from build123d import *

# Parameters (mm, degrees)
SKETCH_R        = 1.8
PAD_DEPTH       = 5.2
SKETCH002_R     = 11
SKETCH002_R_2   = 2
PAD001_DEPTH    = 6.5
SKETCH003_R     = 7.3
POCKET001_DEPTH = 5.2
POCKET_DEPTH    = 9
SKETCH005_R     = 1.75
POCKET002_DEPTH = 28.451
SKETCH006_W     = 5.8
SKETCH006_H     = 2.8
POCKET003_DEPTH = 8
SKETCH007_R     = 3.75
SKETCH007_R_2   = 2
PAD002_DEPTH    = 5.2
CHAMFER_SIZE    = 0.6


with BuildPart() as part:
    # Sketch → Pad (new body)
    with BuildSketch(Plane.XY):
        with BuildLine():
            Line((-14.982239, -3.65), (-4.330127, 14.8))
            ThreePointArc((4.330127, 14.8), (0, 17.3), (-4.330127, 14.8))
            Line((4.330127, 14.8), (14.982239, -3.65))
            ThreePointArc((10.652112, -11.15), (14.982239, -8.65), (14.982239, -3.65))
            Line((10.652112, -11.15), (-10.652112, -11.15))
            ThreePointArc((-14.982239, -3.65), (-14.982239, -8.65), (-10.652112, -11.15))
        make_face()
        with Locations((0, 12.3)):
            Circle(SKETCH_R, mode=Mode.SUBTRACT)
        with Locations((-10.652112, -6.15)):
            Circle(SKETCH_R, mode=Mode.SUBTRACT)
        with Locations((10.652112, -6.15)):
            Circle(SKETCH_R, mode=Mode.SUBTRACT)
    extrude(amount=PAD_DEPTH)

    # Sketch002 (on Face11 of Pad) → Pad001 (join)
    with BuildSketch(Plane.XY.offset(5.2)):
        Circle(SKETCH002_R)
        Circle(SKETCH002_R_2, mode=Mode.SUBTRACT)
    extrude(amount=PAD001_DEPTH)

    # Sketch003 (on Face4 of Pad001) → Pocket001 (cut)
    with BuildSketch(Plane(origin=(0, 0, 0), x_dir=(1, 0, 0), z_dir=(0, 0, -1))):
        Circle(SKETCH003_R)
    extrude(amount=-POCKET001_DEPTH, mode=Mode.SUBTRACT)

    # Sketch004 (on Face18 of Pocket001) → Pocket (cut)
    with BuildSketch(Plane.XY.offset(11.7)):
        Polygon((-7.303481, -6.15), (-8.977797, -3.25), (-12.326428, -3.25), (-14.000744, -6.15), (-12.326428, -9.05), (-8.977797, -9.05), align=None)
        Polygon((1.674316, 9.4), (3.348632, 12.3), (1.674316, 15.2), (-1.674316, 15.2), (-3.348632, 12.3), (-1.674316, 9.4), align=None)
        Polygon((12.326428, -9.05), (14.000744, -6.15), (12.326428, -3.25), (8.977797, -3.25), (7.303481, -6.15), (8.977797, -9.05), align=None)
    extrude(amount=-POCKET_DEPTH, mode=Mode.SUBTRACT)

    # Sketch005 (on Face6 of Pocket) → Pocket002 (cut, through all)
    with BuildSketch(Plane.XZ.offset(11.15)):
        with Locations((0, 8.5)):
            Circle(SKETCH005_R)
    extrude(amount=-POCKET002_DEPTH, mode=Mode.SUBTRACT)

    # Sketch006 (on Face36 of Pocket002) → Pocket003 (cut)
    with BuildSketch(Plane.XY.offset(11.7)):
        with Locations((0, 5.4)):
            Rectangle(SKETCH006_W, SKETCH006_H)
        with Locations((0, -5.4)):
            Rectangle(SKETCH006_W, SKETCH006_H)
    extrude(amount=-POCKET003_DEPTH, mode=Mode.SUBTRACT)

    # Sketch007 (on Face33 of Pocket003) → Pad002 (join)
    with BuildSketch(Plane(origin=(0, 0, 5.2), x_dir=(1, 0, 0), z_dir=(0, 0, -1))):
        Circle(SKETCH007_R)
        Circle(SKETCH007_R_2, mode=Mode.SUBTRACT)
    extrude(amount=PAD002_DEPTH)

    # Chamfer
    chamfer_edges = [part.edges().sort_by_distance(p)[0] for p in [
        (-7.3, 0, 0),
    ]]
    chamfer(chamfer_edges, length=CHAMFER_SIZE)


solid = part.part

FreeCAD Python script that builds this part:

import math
import FreeCAD as App
import Part
import Sketcher

V = App.Vector
Q = App.Units.Quantity


def edges_at(feature, points):
    """Names of the edges that pass closest to the given points."""
    edges = feature.Shape.Edges
    near = lambda p: min(range(len(edges)), key=lambda i: edges[i].distToShape(Part.Vertex(*p))[0])
    return sorted({f"Edge{near(p) + 1}" for p in points})

doc = App.newDocument("Part")
body = doc.addObject("PartDesign::Body", "Body")

sketch1 = body.newObject("Sketcher::SketchObject", "Sketch")
sketch1.AttachmentSupport = (doc.getObject("XY_Plane"), [""])
sketch1.MapMode = "FlatFace"
sketch1.addGeometry(Part.LineSegment(V(-4.3, 14.8, 0), V(-15, -3.6, 0)), False)
sketch1.addGeometry(Part.ArcOfCircle(Part.Circle(V(-10.7, -6.2, 0), V(0, 0, 1), 5), math.radians(150), math.radians(270)), False)
sketch1.addGeometry(Part.LineSegment(V(-10.7, -11.2, 0), V(10.7, -11.2, 0)), False)
sketch1.addGeometry(Part.ArcOfCircle(Part.Circle(V(10.7, -6.2, 0), V(0, 0, 1), 5), math.radians(-90), math.radians(30)), False)
sketch1.addGeometry(Part.LineSegment(V(15, -3.6, 0), V(4.3, 14.8, 0)), False)
sketch1.addGeometry(Part.ArcOfCircle(Part.Circle(V(0, 12.3, 0), V(0, 0, 1), 5), math.radians(30), math.radians(150)), False)
sketch1.addGeometry(Part.Circle(V(10.7, -6.2, 0), V(0, 0, 1), 1.8), False)
sketch1.addGeometry(Part.Circle(V(-10.7, -6.2, 0), V(0, 0, 1), 1.8), False)
sketch1.addGeometry(Part.Circle(V(0, 12.3, 0), V(0, 0, 1), 1.8), False)
sketch1.addConstraint(Sketcher.Constraint("Tangent", 0, 2, 1, 1))
sketch1.addConstraint(Sketcher.Constraint("Tangent", 1, 2, 2, 1))
sketch1.addConstraint(Sketcher.Constraint("Tangent", 2, 2, 3, 1))
sketch1.addConstraint(Sketcher.Constraint("Tangent", 3, 2, 4, 1))
sketch1.addConstraint(Sketcher.Constraint("Tangent", 4, 2, 5, 1))
sketch1.addConstraint(Sketcher.Constraint("Tangent", 5, 2, 0, 1))
sketch1.addConstraint(Sketcher.Constraint("Horizontal", 2))
sketch1.addConstraint(Sketcher.Constraint("Coincident", 6, 3, 3, 3))
sketch1.addConstraint(Sketcher.Constraint("Coincident", 7, 3, 1, 3))
sketch1.addConstraint(Sketcher.Constraint("Coincident", 8, 3, 5, 3))
sketch1.addConstraint(Sketcher.Constraint("Equal", 1, 3))
sketch1.addConstraint(Sketcher.Constraint("Equal", 3, 5))
sketch1.addConstraint(Sketcher.Constraint("Equal", 6, 7))
sketch1.addConstraint(Sketcher.Constraint("Equal", 7, 8))
sketch1.addConstraint(Sketcher.Constraint("Symmetric", 0, 2, 3, 2, -2))
sketch1.addConstraint(Sketcher.Constraint("Radius", 1, Q("5 mm")))
sketch1.addConstraint(Sketcher.Constraint("Diameter", 6, Q("3.6 mm")))
sketch1.addConstraint(Sketcher.Constraint("Angle", 0, Q("-119.999999 deg")))
sketch1.addConstraint(Sketcher.Constraint("DistanceY", -1, 1, 5, 3, Q("12.3 mm")))
sketch1.addConstraint(Sketcher.Constraint("DistanceY", 1, 3, -1, 1, Q("6.15 mm")))
pad1 = body.newObject("PartDesign::Pad", "Pad")
pad1.Profile = sketch1
pad1.Length = 5.2

sketch2 = body.newObject("Sketcher::SketchObject", "Sketch001")
sketch2.AttachmentSupport = (doc.getObject("XY_Plane"), [""])
sketch2.MapMode = "FlatFace"
sketch2.AttachmentOffset = App.Placement(V(0, 0, 5.2), App.Rotation())
sketch2.addGeometry(Part.Circle(V(0, 0, 0), V(0, 0, 1), 11), False)
sketch2.addGeometry(Part.Circle(V(0, 0, 0), V(0, 0, 1), 2), False)
sketch2.addConstraint(Sketcher.Constraint("Coincident", 0, 3, -1, 1))
sketch2.addConstraint(Sketcher.Constraint("Coincident", 1, 3, -1, 1))
sketch2.addConstraint(Sketcher.Constraint("Diameter", 0, Q("22 mm")))
sketch2.addConstraint(Sketcher.Constraint("Diameter", 1, Q("4 mm")))
pad2 = body.newObject("PartDesign::Pad", "Pad001")
pad2.Profile = sketch2
pad2.Length = 6.5

sketch3 = body.newObject("Sketcher::SketchObject", "Sketch002")
sketch3.AttachmentSupport = (doc.getObject("XY_Plane"), [""])
sketch3.MapMode = "FlatFace"
sketch3.addGeometry(Part.Circle(V(0, 0, 0), V(0, 0, 1), 7), False)
sketch3.addConstraint(Sketcher.Constraint("Coincident", 0, 3, -1, 1))
sketch3.addConstraint(Sketcher.Constraint("Diameter", 0, Q("14.6 mm")))
pocket1 = body.newObject("PartDesign::Pocket", "Pocket")
pocket1.Profile = sketch3
pocket1.Length = 5.2
pocket1.Reversed = True

sketch4 = body.newObject("Sketcher::SketchObject", "Sketch003")
sketch4.AttachmentSupport = (doc.getObject("XY_Plane"), [""])
sketch4.MapMode = "FlatFace"
sketch4.AttachmentOffset = App.Placement(V(0, 0, 11.7), App.Rotation())
sketch4.addGeometry(Part.LineSegment(V(-7.3, -6.2, 0), V(-9, -3.2, 0)), False)
sketch4.addGeometry(Part.LineSegment(V(-9, -3.2, 0), V(-12.3, -3.2, 0)), False)
sketch4.addGeometry(Part.LineSegment(V(-12.3, -3.2, 0), V(-14, -6.2, 0)), False)
sketch4.addGeometry(Part.LineSegment(V(-14, -6.2, 0), V(-12.3, -9.1, 0)), False)
sketch4.addGeometry(Part.LineSegment(V(-12.3, -9.1, 0), V(-9, -9.1, 0)), False)
sketch4.addGeometry(Part.LineSegment(V(-9, -9.1, 0), V(-7.3, -6.2, 0)), False)
sketch4.addGeometry(Part.LineSegment(V(1.7, 9.4, 0), V(3.3, 12.3, 0)), False)
sketch4.addGeometry(Part.LineSegment(V(3.3, 12.3, 0), V(1.7, 15.2, 0)), False)
sketch4.addGeometry(Part.LineSegment(V(1.7, 15.2, 0), V(-1.7, 15.2, 0)), False)
sketch4.addGeometry(Part.LineSegment(V(-1.7, 15.2, 0), V(-3.3, 12.3, 0)), False)
sketch4.addGeometry(Part.LineSegment(V(-3.3, 12.3, 0), V(-1.7, 9.4, 0)), False)
sketch4.addGeometry(Part.LineSegment(V(-1.7, 9.4, 0), V(1.7, 9.4, 0)), False)
sketch4.addGeometry(Part.LineSegment(V(12.3, -9.1, 0), V(14, -6.2, 0)), False)
sketch4.addGeometry(Part.LineSegment(V(14, -6.2, 0), V(12.3, -3.2, 0)), False)
sketch4.addGeometry(Part.LineSegment(V(12.3, -3.2, 0), V(9, -3.2, 0)), False)
sketch4.addGeometry(Part.LineSegment(V(9, -3.2, 0), V(7.3, -6.2, 0)), False)
sketch4.addGeometry(Part.LineSegment(V(7.3, -6.2, 0), V(9, -9.1, 0)), False)
sketch4.addGeometry(Part.LineSegment(V(9, -9.1, 0), V(12.3, -9.1, 0)), False)
sketch4.addConstraint(Sketcher.Constraint("Coincident", 0, 2, 1, 1))
sketch4.addConstraint(Sketcher.Constraint("Coincident", 1, 2, 2, 1))
sketch4.addConstraint(Sketcher.Constraint("Coincident", 2, 2, 3, 1))
sketch4.addConstraint(Sketcher.Constraint("Coincident", 3, 2, 4, 1))
sketch4.addConstraint(Sketcher.Constraint("Coincident", 4, 2, 5, 1))
sketch4.addConstraint(Sketcher.Constraint("Coincident", 5, 2, 0, 1))
sketch4.addConstraint(Sketcher.Constraint("Coincident", 6, 2, 7, 1))
sketch4.addConstraint(Sketcher.Constraint("Coincident", 7, 2, 8, 1))
sketch4.addConstraint(Sketcher.Constraint("Coincident", 8, 2, 9, 1))
sketch4.addConstraint(Sketcher.Constraint("Coincident", 9, 2, 10, 1))
sketch4.addConstraint(Sketcher.Constraint("Coincident", 10, 2, 11, 1))
sketch4.addConstraint(Sketcher.Constraint("Coincident", 11, 2, 6, 1))
sketch4.addConstraint(Sketcher.Constraint("Coincident", 12, 2, 13, 1))
sketch4.addConstraint(Sketcher.Constraint("Coincident", 13, 2, 14, 1))
sketch4.addConstraint(Sketcher.Constraint("Coincident", 14, 2, 15, 1))
sketch4.addConstraint(Sketcher.Constraint("Coincident", 15, 2, 16, 1))
sketch4.addConstraint(Sketcher.Constraint("Coincident", 16, 2, 17, 1))
sketch4.addConstraint(Sketcher.Constraint("Coincident", 17, 2, 12, 1))
sketch4.addConstraint(Sketcher.Constraint("Horizontal", 1))
sketch4.addConstraint(Sketcher.Constraint("Horizontal", 4))
sketch4.addConstraint(Sketcher.Constraint("Horizontal", 8))
sketch4.addConstraint(Sketcher.Constraint("Horizontal", 11))
sketch4.addConstraint(Sketcher.Constraint("Horizontal", 14))
sketch4.addConstraint(Sketcher.Constraint("Horizontal", 17))
sketch4.addConstraint(Sketcher.Constraint("Symmetric", 6, 2, 9, 2, -2))
sketch4.addConstraint(Sketcher.Constraint("Symmetric", 2, 2, 12, 2, -2))
sketch4.addConstraint(Sketcher.Constraint("Symmetric", 1, 2, 13, 2, -2))
sketch4.addConstraint(Sketcher.Constraint("Symmetric", 5, 2, 15, 2, -2))
sketch4.addConstraint(Sketcher.Constraint("Symmetric", 4, 2, 16, 2, -2))
sketch4.addConstraint(Sketcher.Constraint("Parallel", 0, 3))
sketch4.addConstraint(Sketcher.Constraint("Parallel", 2, 5))
sketch4.addConstraint(Sketcher.Constraint("Parallel", 5, 6))
sketch4.addConstraint(Sketcher.Constraint("Parallel", 3, 7))
sketch4.addConstraint(Sketcher.Constraint("Parallel", 6, 9))
sketch4.addConstraint(Sketcher.Constraint("Parallel", 7, 10))
sketch4.addConstraint(Sketcher.Constraint("Parallel", 9, 12))
sketch4.addConstraint(Sketcher.Constraint("Parallel", 10, 13))
sketch4.addConstraint(Sketcher.Constraint("Parallel", 12, 15))
sketch4.addConstraint(Sketcher.Constraint("Horizontal", 2, 2, 5, 2))
sketch4.addConstraint(Sketcher.Constraint("Vertical", 1, 2, 3, 2))
sketch4.addConstraint(Sketcher.Constraint("Vertical", 8, 2, 10, 2))
sketch4.addConstraint(Sketcher.Constraint("Equal", 4, 8))
sketch4.addConstraint(Sketcher.Constraint("Equal", 5, 6))
sketch4.addConstraint(Sketcher.Constraint("Angle", 0, Q("120.000003 deg")))
sketch4.addConstraint(Sketcher.Constraint("DistanceY", -1, 1, 6, 2, Q("12.3 mm")))
sketch4.addConstraint(Sketcher.Constraint("DistanceY", -1, 1, 7, 2, Q("15.2 mm")))
sketch4.addConstraint(Sketcher.Constraint("DistanceY", 0, 2, -1, 1, Q("3.25 mm")))
sketch4.addConstraint(Sketcher.Constraint("DistanceX", 1, 2, 1, 1, Q("3.348631 mm")))
sketch4.addConstraint(Sketcher.Constraint("DistanceX", 5, 2, -1, 1, Q("7.303481 mm")))
pocket2 = body.newObject("PartDesign::Pocket", "Pocket001")
pocket2.Profile = sketch4
pocket2.Length = 9

sketch5 = body.newObject("Sketcher::SketchObject", "Sketch004")
sketch5.AttachmentSupport = (doc.getObject("XZ_Plane"), [""])
sketch5.MapMode = "FlatFace"
sketch5.AttachmentOffset = App.Placement(V(0, 0, 11.15), App.Rotation())
sketch5.addGeometry(Part.Circle(V(0, 8.5, 0), V(0, 0, 1), 1.8), False)
sketch5.addConstraint(Sketcher.Constraint("PointOnObject", 0, 3, -2))
sketch5.addConstraint(Sketcher.Constraint("Diameter", 0, Q("3.5 mm")))
sketch5.addConstraint(Sketcher.Constraint("DistanceY", -1, 1, 0, 3, Q("8.5 mm")))
pocket3 = body.newObject("PartDesign::Pocket", "Pocket002")
pocket3.Profile = sketch5
pocket3.Type = "ThroughAll"

sketch6 = body.newObject("Sketcher::SketchObject", "Sketch005")
sketch6.AttachmentSupport = (doc.getObject("XY_Plane"), [""])
sketch6.MapMode = "FlatFace"
sketch6.AttachmentOffset = App.Placement(V(0, 0, 11.7), App.Rotation())
sketch6.addGeometry(Part.LineSegment(V(-2.9, 6.8, 0), V(-2.9, 4, 0)), False)
sketch6.addGeometry(Part.LineSegment(V(-2.9, 4, 0), V(2.9, 4, 0)), False)
sketch6.addGeometry(Part.LineSegment(V(2.9, 4, 0), V(2.9, 6.8, 0)), False)
sketch6.addGeometry(Part.LineSegment(V(2.9, 6.8, 0), V(-2.9, 6.8, 0)), False)
sketch6.addGeometry(Part.LineSegment(V(-2.9, -4, 0), V(-2.9, -6.8, 0)), False)
sketch6.addGeometry(Part.LineSegment(V(-2.9, -6.8, 0), V(2.9, -6.8, 0)), False)
sketch6.addGeometry(Part.LineSegment(V(2.9, -6.8, 0), V(2.9, -4, 0)), False)
sketch6.addGeometry(Part.LineSegment(V(2.9, -4, 0), V(-2.9, -4, 0)), False)
sketch6.addConstraint(Sketcher.Constraint("Coincident", 0, 2, 1, 1))
sketch6.addConstraint(Sketcher.Constraint("Coincident", 1, 2, 2, 1))
sketch6.addConstraint(Sketcher.Constraint("Coincident", 2, 2, 3, 1))
sketch6.addConstraint(Sketcher.Constraint("Coincident", 3, 2, 0, 1))
sketch6.addConstraint(Sketcher.Constraint("Coincident", 4, 2, 5, 1))
sketch6.addConstraint(Sketcher.Constraint("Coincident", 5, 2, 6, 1))
sketch6.addConstraint(Sketcher.Constraint("Coincident", 6, 2, 7, 1))
sketch6.addConstraint(Sketcher.Constraint("Coincident", 7, 2, 4, 1))
sketch6.addConstraint(Sketcher.Constraint("Vertical", 0))
sketch6.addConstraint(Sketcher.Constraint("Horizontal", 1))
sketch6.addConstraint(Sketcher.Constraint("Vertical", 2))
sketch6.addConstraint(Sketcher.Constraint("Horizontal", 3))
sketch6.addConstraint(Sketcher.Constraint("Vertical", 4))
sketch6.addConstraint(Sketcher.Constraint("Horizontal", 5))
sketch6.addConstraint(Sketcher.Constraint("Vertical", 6))
sketch6.addConstraint(Sketcher.Constraint("Horizontal", 7))
sketch6.addConstraint(Sketcher.Constraint("Symmetric", 2, 2, 4, 2, -1, 1))
sketch6.addConstraint(Sketcher.Constraint("Symmetric", 0, 2, 6, 2, -1, 1))
sketch6.addConstraint(Sketcher.Constraint("Vertical", 3, 2, 4, 2))
sketch6.addConstraint(Sketcher.Constraint("DistanceX", 1, 1, 1, 2, Q("5.8 mm")))
sketch6.addConstraint(Sketcher.Constraint("DistanceY", 0, 2, 0, 1, Q("2.8 mm")))
sketch6.addConstraint(Sketcher.Constraint("DistanceY", -1, 1, 0, 2, Q("4 mm")))
pocket4 = body.newObject("PartDesign::Pocket", "Pocket003")
pocket4.Profile = sketch6
pocket4.Length = 8

sketch7 = body.newObject("Sketcher::SketchObject", "Sketch006")
sketch7.AttachmentSupport = (doc.getObject("XY_Plane"), [""])
sketch7.MapMode = "FlatFace"
sketch7.AttachmentOffset = App.Placement(V(0, 0, 5.2), App.Rotation())
sketch7.addGeometry(Part.Circle(V(0, 0, 0), V(0, 0, 1), 3.8), False)
sketch7.addGeometry(Part.Circle(V(0, 0, 0), V(0, 0, 1), 2), False)
sketch7.addConstraint(Sketcher.Constraint("Coincident", 0, 3, -1, 1))
sketch7.addConstraint(Sketcher.Constraint("Coincident", 1, 3, -1, 1))
sketch7.addConstraint(Sketcher.Constraint("Diameter", 1, Q("4 mm")))
sketch7.addConstraint(Sketcher.Constraint("Diameter", 0, Q("7.5 mm")))
pad3 = body.newObject("PartDesign::Pad", "Pad002")
pad3.Profile = sketch7
pad3.Length = 5.2
pad3.Reversed = True
doc.recompute()

chamfer = body.newObject("PartDesign::Chamfer", "Chamfer")
chamfer.Base = (pad3, edges_at(pad3, [(-7.3, 0, 0)]))
chamfer.Size = 0.6

doc.recompute()
